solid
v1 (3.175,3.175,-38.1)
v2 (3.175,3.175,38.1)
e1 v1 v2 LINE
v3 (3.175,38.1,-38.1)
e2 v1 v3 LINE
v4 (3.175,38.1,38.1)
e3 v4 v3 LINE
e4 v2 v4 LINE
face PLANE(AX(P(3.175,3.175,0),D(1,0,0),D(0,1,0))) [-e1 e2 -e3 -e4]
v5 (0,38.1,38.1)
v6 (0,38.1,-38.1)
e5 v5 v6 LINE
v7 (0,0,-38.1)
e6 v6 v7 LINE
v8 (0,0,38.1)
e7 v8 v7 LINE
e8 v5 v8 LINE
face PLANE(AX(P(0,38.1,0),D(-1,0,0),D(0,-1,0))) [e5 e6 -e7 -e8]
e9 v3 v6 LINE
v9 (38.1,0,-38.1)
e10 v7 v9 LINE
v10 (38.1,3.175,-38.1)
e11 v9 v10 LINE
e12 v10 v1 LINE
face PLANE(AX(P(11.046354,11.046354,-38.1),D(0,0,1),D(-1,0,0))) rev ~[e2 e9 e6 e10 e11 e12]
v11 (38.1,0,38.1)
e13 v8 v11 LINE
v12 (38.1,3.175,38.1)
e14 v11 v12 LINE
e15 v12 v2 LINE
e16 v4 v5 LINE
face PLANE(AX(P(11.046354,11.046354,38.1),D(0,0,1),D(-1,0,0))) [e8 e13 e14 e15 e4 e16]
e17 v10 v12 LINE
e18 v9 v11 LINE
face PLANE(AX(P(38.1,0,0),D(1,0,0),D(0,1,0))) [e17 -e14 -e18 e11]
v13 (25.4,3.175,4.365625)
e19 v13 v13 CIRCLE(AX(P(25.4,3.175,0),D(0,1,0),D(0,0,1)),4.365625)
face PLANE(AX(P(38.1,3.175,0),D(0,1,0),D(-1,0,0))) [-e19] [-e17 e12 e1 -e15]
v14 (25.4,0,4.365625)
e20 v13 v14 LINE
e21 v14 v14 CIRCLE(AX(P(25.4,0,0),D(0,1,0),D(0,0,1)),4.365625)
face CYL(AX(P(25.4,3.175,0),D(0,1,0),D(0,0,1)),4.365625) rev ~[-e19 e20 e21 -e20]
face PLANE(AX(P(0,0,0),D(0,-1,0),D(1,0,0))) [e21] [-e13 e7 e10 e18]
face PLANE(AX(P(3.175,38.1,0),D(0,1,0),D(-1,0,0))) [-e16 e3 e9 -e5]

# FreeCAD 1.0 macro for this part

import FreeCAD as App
import Part
import Sketcher

V = App.Vector
Q = App.Units.Quantity


def add_polygon(sketch, points):
    """Adds a closed chain of lines whose ends are joined by coincident constraints."""
    first, n = sketch.GeometryCount, len(points)
    for a, b in zip(points, points[1:] + points[:1]):
        sketch.addGeometry(Part.LineSegment(App.Vector(*a, 0), App.Vector(*b, 0)), False)
    for i in range(n):
        sketch.addConstraint(Sketcher.Constraint("Coincident", first + i, 2, first + (i + 1) % n, 1))

doc = App.newDocument("Part")
body = doc.addObject("PartDesign::Body", "Body")

# Sketch on XY plane
sketch1 = body.newObject("Sketcher::SketchObject", "Sketch")
sketch1.AttachmentSupport = (doc.getObject("XY_Plane"), [""])
sketch1.MapMode = "FlatFace"
add_polygon(sketch1, [(0, 0), (38.1, 0), (38.1, 3.2), (3.2, 3.2), (3.2, 38.1), (0, 38.1)])  # lines 0-5
sketch1.addConstraint(Sketcher.Constraint("Horizontal", 0))
sketch1.addConstraint(Sketcher.Constraint("Vertical", 1))
sketch1.addConstraint(Sketcher.Constraint("Horizontal", 2))
sketch1.addConstraint(Sketcher.Constraint("Vertical", 3))
sketch1.addConstraint(Sketcher.Constraint("Horizontal", 4))
sketch1.addConstraint(Sketcher.Constraint("Vertical", 5))
sketch1.addConstraint(Sketcher.Constraint("Coincident", 5, 2, -1, 1))
sketch1.addConstraint(Sketcher.Constraint("Equal", 4, 1))
sketch1.addConstraint(Sketcher.Constraint("Equal", 2, 3))
sketch1.addConstraint(Sketcher.Constraint("DistanceX", 0, 1, 0, 2, Q("1.5 in")))
sketch1.addConstraint(Sketcher.Constraint("DistanceX", 2, 2, 2, 1, Q("1.375 in")))
pad1 = body.newObject("PartDesign::Pad", "Pad")
pad1.Profile = sketch1
pad1.Length = Q("3 in")
pad1.Midplane = True

# Sketch on XZ plane
sketch2 = body.newObject("Sketcher::SketchObject", "Sketch001")
sketch2.AttachmentSupport = (doc.getObject("XZ_Plane"), [""])
sketch2.MapMode = "FlatFace"
sketch2.AttachmentOffset = App.Placement(V(0, 0, -0.125 * 25.4), App.Rotation())
sketch2.addGeometry(Part.Circle(V(25.4, 0, 0), V(0, 0, 1), 4.4), False)
sketch2.addConstraint(Sketcher.Constraint("PointOnObject", 0, 3, -1))
sketch2.addConstraint(Sketcher.Constraint("Diameter", 0, Q("0.34375 in")))
sketch2.addConstraint(Sketcher.Constraint("DistanceX", -1, 1, 0, 3, Q("1 in")))
pocket1 = body.newObject("PartDesign::Pocket", "Pocket")
pocket1.Profile = sketch2
pocket1.Type = "UpToFirst"
pocket1.Reversed = True

doc.recompute()
